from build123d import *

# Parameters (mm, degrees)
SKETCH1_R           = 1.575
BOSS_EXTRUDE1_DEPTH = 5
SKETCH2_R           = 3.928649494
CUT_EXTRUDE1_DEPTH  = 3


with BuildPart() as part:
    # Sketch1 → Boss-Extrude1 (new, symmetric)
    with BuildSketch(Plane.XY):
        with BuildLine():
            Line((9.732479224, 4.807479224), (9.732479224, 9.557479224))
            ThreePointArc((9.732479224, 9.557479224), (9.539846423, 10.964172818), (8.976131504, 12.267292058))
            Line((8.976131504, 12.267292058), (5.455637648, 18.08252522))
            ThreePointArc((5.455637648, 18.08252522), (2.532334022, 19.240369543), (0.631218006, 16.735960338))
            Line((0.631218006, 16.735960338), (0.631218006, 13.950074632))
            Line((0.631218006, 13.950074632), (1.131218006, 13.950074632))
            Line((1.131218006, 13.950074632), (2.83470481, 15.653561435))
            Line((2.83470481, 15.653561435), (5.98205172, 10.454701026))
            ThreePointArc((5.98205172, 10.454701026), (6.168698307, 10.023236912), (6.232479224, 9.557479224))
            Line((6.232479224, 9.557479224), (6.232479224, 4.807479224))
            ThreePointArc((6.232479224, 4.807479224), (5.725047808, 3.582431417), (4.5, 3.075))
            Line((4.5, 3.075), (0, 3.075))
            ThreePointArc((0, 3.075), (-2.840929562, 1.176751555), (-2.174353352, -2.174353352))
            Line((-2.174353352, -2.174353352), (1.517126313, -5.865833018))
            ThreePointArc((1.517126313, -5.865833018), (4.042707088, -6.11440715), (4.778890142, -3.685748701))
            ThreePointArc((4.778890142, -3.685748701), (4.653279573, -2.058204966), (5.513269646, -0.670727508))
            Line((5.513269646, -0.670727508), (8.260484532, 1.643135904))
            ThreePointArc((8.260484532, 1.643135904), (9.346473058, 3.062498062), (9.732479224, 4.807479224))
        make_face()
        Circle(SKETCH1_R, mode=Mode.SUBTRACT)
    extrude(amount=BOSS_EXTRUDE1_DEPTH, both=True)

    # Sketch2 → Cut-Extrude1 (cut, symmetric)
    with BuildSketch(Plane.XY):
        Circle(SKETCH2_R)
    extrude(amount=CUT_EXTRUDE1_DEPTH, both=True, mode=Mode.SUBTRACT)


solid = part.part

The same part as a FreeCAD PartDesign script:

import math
import FreeCAD as App
import Part
import Sketcher
Q = App.Units.Quantity

doc = App.newDocument("Part")
params = doc.addObject("Spreadsheet::Sheet", "Params")
for row, (alias, value) in enumerate([
    ("sketch1_radius", "2 mm"),
    ("sketch1_diameter", "3.15 mm"),
    ("sketch1_width", "0.5 mm"),
    ("sketch1_width2", "4.5 mm"),
    ("sketch1_height", "4.75 mm"),
    ("pad1_length", "10 mm"),
    ("pocket1_length", "6 mm"),
], start=1):
    params.set(f"A{row}", alias)
    params.set(f"B{row}", "=" + value)
    params.setAlias(f"B{row}", alias)

body = doc.addObject("PartDesign::Body", "Body")

# Sketch on XY plane
sketch1 = doc.addObject("Sketcher::SketchObject", "Sketch")
body.addObject(sketch1)
sketch1.AttachmentSupport = (doc.XY_Plane, [""])
sketch1.MapMode = "FlatFace"
sketch1.addGeometry(Part.LineSegment(App.Vector(9.7, 4.8, 0), App.Vector(9.7, 9.6, 0)), False)
sketch1.addGeometry(Part.ArcOfCircle(Part.Circle(App.Vector(4.5, 9.6, 0), App.Vector(0, 0, 1), 5.2), math.radians(0), math.radians(31)), False)
sketch1.addGeometry(Part.LineSegment(App.Vector(9, 12.3, 0), App.Vector(5.5, 18.1, 0)), False)
sketch1.addGeometry(Part.ArcOfCircle(Part.Circle(App.Vector(3.2, 16.7, 0), App.Vector(0, 0, 1), 2.6), math.radians(31), math.radians(180)), False)
sketch1.addGeometry(Part.LineSegment(App.Vector(0.6, 16.7, 0), App.Vector(0.6, 14, 0)), False)
sketch1.addGeometry(Part.LineSegment(App.Vector(0.6, 14, 0), App.Vector(1.1, 14, 0)), False)
sketch1.addGeometry(Part.LineSegment(App.Vector(1.1, 14, 0), App.Vector(2.8, 15.7, 0)), False)
sketch1.addGeometry(Part.LineSegment(App.Vector(2.8, 15.7, 0), App.Vector(6, 10.5, 0)), False)
sketch1.addGeometry(Part.ArcOfCircle(Part.Circle(App.Vector(4.5, 9.6, 0), App.Vector(0, 0, 1), 1.7), math.radians(0), math.radians(31)), False)
sketch1.addGeometry(Part.LineSegment(App.Vector(6.2, 9.6, 0), App.Vector(6.2, 4.8, 0)), False)
sketch1.addGeometry(Part.ArcOfCircle(Part.Circle(App.Vector(4.5, 4.8, 0), App.Vector(0, 0, 1), 1.7), math.radians(-90), math.radians(0)), False)
sketch1.addGeometry(Part.LineSegment(App.Vector(4.5, 3.1, 0), App.Vector(0, 3.1, 0)), False)
sketch1.addGeometry(Part.ArcOfCircle(Part.Circle(App.Vector(0, 0, 0), App.Vector(0, 0, 1), 3.1), math.radians(90), math.radians(225)), False)
sketch1.addGeometry(Part.LineSegment(App.Vector(-2.2, -2.2, 0), App.Vector(1.5, -5.9, 0)), False)
sketch1.addGeometry(Part.ArcOfCircle(Part.Circle(App.Vector(2.9, -4.5, 0), App.Vector(0, 0, 1), 2), math.radians(-135), math.radians(23)), False)
sketch1.addGeometry(Part.ArcOfCircle(Part.Circle(App.Vector(7.2, -2.7, 0), App.Vector(0, 0, 1), 2.6), math.radians(130), math.radians(203)), False)
sketch1.addGeometry(Part.LineSegment(App.Vector(5.5, -0.7, 0), App.Vector(8.3, 1.6, 0)), False)
sketch1.addGeometry(Part.ArcOfCircle(Part.Circle(App.Vector(5.6, 4.8, 0), App.Vector(0, 0, 1), 4.1), math.radians(-50), math.radians(0)), False)
sketch1.addGeometry(Part.Circle(App.Vector(0, 0, 0), App.Vector(0, 0, 1), 1.6), False)
sketch1.addConstraint(Sketcher.Constraint("Tangent", 0, 2, 1, 1))
sketch1.addConstraint(Sketcher.Constraint("Tangent", 1, 2, 2, 1))
sketch1.addConstraint(Sketcher.Constraint("Tangent", 2, 2, 3, 1))
sketch1.addConstraint(Sketcher.Constraint("Tangent", 3, 2, 4, 1))
sketch1.addConstraint(Sketcher.Constraint("Coincident", 4, 2, 5, 1))
sketch1.addConstraint(Sketcher.Constraint("Coincident", 5, 2, 6, 1))
sketch1.addConstraint(Sketcher.Constraint("Coincident", 6, 2, 7, 1))
sketch1.addConstraint(Sketcher.Constraint("Tangent", 7, 2, 8, 2))
sketch1.addConstraint(Sketcher.Constraint("Tangent", 8, 1, 9, 1))
sketch1.addConstraint(Sketcher.Constraint("Tangent", 9, 2, 10, 2))
sketch1.addConstraint(Sketcher.Constraint("Tangent", 10, 1, 11, 1))
sketch1.addConstraint(Sketcher.Constraint("Tangent", 11, 2, 12, 1))
sketch1.addConstraint(Sketcher.Constraint("Tangent", 12, 2, 13, 1))
sketch1.addConstraint(Sketcher.Constraint("Tangent", 13, 2, 14, 1))
sketch1.addConstraint(Sketcher.Constraint("Tangent", 14, 2, 15, 2))
sketch1.addConstraint(Sketcher.Constraint("Tangent", 15, 1, 16, 1))
sketch1.addConstraint(Sketcher.Constraint("Tangent", 16, 2, 17, 1))
sketch1.addConstraint(Sketcher.Constraint("Tangent", 17, 2, 0, 1))
sketch1.addConstraint(Sketcher.Constraint("Vertical", 0))
sketch1.addConstraint(Sketcher.Constraint("Vertical", 4))
sketch1.addConstraint(Sketcher.Constraint("Horizontal", 5))
sketch1.addConstraint(Sketcher.Constraint("Vertical", 9))
sketch1.addConstraint(Sketcher.Constraint("Horizontal", 11))
sketch1.addConstraint(Sketcher.Constraint("Coincident", 12, 3, -1, 1))
sketch1.addConstraint(Sketcher.Constraint("Coincident", 18, 3, -1, 1))
sketch1.addConstraint(Sketcher.Constraint("Coincident", 8, 3, 1, 3))
sketch1.addConstraint(Sketcher.Constraint("Equal", 8, 10))
sketch1.addConstraint(Sketcher.Constraint("Parallel", 2, 7))
sketch1.addConstraint(Sketcher.Constraint("Perpendicular", 6, 13))
sketch1.addConstraint(Sketcher.Constraint("Horizontal", 10, 3, 17, 3))
sketch1.addConstraint(Sketcher.Constraint("Radius", 14, Q("2 mm")))
sketch1.addConstraint(Sketcher.Constraint("Diameter", 18, Q("3.15 mm")))
sketch1.addConstraint(Sketcher.Constraint("Angle", 6, Q("45 deg")))
sketch1.addConstraint(Sketcher.Constraint("DistanceX", 5, 1, 5, 2, Q("0.5 mm")))
sketch1.addConstraint(Sketcher.Constraint("DistanceX", 11, 2, 11, 1, Q("4.5 mm")))
sketch1.addConstraint(Sketcher.Constraint("Radius", 12, Q("3.075 mm")))
sketch1.addConstraint(Sketcher.Constraint("DistanceY", 0, 1, 0, 2, Q("4.75 mm")))
sketch1.addConstraint(Sketcher.Constraint("DistanceX", 8, 1, 0, 2, Q("3.5 mm")))
sketch1.addConstraint(Sketcher.Constraint("Radius", 1, Q("5.232479 mm")))
sketch1.addConstraint(Sketcher.Constraint("Radius", 3, Q("2.600133 mm")))
sketch1.addConstraint(Sketcher.Constraint("Radius", 15, Q("2.626808 mm")))
sketch1.addConstraint(Sketcher.Constraint("Radius", 17, Q("4.137188 mm")))
sketch1.addConstraint(Sketcher.Constraint("DistanceY", -1, 1, 7, 2, Q("10.454701 mm")))
sketch1.addConstraint(Sketcher.Constraint("DistanceY", 14, 3, 10, 3, Q("9.259099 mm")))
sketch1.addConstraint(Sketcher.Constraint("DistanceY", 6, 2, 3, 3, Q("1.082399 mm")))
sketch1.addConstraint(Sketcher.Constraint("DistanceX", 15, 1, 15, 3, Q("1.6922 mm")))
sketch1.addConstraint(Sketcher.Constraint("Distance", 7, Q("6.07733 mm")))
sketch1.setExpression("Constraints[30]", "Params.sketch1_radius")
sketch1.setExpression("Constraints[31]", "Params.sketch1_diameter")
sketch1.setExpression("Constraints[33]", "Params.sketch1_width")
sketch1.setExpression("Constraints[34]", "Params.sketch1_width2")
sketch1.setExpression("Constraints[36]", "Params.sketch1_height")
pad1 = doc.addObject("PartDesign::Pad", "Pad")
body.addObject(pad1)
pad1.Profile = sketch1
pad1.setExpression("Length", "Params.pad1_length")
pad1.Midplane = True

# Sketch on XY plane
sketch2 = doc.addObject("Sketcher::SketchObject", "Sketch001")
body.addObject(sketch2)
sketch2.AttachmentSupport = (doc.XY_Plane, [""])
sketch2.MapMode = "FlatFace"
sketch2.addGeometry(Part.Circle(App.Vector(0, 0, 0), App.Vector(0, 0, 1), 3.9), False)
sketch2.addConstraint(Sketcher.Constraint("Coincident", 0, 3, -1, 1))
sketch2.addConstraint(Sketcher.Constraint("Diameter", 0, Q("7.857299 mm")))
pocket1 = doc.addObject("PartDesign::Pocket", "Pocket")
body.addObject(pocket1)
pocket1.Profile = sketch2
pocket1.setExpression("Length", "Params.pocket1_length")
pocket1.Midplane = True

doc.recompute()
